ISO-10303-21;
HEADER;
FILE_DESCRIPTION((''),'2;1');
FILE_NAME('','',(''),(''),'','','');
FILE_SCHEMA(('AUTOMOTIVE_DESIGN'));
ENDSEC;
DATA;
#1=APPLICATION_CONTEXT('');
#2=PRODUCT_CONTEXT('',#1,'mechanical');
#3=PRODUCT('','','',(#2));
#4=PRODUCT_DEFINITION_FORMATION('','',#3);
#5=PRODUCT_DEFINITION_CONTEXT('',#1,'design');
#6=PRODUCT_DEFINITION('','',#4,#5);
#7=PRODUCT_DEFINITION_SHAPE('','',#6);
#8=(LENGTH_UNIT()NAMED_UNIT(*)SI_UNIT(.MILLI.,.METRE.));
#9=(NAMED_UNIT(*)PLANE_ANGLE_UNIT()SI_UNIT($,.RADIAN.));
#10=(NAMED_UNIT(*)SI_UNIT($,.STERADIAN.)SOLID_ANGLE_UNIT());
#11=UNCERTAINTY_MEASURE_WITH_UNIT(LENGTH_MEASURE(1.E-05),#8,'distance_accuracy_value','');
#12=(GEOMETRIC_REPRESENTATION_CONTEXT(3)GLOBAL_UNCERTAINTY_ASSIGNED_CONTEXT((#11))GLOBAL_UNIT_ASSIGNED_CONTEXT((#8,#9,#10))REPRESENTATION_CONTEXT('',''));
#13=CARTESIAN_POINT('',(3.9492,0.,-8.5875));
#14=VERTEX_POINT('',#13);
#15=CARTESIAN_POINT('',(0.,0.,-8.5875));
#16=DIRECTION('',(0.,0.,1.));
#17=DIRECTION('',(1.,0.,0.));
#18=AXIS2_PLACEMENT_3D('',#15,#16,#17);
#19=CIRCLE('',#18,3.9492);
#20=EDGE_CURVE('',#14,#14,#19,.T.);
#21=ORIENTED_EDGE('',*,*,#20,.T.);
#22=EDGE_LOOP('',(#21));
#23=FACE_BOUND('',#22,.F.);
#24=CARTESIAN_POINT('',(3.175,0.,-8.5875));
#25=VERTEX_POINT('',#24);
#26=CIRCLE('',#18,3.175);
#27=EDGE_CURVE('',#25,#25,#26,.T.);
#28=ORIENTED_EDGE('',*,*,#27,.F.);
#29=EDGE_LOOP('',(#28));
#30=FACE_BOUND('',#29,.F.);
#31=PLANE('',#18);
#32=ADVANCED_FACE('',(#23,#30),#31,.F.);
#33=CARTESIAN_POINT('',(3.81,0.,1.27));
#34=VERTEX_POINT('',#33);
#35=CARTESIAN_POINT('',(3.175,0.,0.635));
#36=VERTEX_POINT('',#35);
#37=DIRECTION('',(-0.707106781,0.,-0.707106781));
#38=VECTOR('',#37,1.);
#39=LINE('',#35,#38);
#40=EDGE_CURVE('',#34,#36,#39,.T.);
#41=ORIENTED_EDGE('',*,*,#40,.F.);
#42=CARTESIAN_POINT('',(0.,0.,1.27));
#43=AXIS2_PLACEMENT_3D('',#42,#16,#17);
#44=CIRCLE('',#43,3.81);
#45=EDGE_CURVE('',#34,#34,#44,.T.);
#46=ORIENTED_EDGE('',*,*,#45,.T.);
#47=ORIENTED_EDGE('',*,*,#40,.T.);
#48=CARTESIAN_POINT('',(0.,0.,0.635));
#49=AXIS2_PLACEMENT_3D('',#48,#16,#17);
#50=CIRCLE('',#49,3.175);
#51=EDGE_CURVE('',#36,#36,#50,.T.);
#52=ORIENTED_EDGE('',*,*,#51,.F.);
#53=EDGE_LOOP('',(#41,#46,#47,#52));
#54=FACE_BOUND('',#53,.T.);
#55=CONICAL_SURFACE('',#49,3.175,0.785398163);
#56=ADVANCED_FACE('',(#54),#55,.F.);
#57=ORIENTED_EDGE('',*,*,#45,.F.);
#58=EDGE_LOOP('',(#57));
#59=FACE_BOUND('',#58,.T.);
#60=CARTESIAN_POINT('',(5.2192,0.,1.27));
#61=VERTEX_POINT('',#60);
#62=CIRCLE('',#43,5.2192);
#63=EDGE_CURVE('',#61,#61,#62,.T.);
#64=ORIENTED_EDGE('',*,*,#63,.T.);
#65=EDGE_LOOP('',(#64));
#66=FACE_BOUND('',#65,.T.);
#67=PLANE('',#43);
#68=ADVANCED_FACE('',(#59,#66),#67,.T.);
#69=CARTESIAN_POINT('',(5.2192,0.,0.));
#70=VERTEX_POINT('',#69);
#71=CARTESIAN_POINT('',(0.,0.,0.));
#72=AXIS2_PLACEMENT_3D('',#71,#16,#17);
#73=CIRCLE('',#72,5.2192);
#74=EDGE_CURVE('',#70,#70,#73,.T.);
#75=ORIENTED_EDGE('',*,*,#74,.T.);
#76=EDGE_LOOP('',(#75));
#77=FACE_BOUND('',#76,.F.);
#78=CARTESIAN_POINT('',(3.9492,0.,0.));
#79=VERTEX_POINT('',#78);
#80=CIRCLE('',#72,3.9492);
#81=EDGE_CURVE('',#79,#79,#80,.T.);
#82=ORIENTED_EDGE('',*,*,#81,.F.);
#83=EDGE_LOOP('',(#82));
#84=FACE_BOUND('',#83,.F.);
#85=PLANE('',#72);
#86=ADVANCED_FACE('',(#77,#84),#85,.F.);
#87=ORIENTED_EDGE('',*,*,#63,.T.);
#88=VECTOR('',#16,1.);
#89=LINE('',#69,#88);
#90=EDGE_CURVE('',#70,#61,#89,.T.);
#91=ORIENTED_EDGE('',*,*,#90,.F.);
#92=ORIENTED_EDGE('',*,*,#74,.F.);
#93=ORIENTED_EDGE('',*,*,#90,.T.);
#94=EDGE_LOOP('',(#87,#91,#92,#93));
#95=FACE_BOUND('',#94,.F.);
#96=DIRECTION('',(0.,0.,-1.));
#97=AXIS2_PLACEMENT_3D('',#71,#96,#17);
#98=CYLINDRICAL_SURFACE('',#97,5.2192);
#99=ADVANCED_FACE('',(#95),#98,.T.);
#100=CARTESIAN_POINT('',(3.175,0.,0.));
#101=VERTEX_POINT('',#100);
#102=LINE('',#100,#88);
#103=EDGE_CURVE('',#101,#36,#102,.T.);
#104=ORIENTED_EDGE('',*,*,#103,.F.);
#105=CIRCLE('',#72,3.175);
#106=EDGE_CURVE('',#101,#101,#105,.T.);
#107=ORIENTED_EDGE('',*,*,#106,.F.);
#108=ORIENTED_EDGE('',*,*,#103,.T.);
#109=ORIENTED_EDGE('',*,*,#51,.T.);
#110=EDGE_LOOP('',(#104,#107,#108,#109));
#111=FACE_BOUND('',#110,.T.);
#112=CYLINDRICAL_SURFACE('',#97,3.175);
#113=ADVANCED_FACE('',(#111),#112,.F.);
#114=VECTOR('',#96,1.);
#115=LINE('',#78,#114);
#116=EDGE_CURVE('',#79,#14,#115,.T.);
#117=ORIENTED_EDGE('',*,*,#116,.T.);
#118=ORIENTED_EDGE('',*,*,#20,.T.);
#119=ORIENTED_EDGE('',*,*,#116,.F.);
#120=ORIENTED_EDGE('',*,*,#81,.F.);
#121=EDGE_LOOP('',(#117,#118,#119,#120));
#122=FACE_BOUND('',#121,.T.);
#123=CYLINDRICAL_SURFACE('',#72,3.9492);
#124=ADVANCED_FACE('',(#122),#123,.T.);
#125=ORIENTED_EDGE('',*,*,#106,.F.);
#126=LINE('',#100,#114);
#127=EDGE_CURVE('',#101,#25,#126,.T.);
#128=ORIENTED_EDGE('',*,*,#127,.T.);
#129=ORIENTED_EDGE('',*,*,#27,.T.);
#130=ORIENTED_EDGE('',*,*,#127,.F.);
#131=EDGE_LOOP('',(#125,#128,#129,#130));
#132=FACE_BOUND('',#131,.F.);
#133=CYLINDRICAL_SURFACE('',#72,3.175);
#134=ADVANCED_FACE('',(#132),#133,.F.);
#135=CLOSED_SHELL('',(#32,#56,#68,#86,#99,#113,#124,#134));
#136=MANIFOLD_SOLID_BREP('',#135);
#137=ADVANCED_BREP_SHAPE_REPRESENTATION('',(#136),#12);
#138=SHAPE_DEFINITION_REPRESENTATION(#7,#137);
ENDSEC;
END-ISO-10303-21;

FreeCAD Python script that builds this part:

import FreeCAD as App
import Part
import Sketcher
from FreeCAD import Vector
Q = App.Units.Quantity


def edges_at(feature, points):
    """Names of the edges that pass closest to the given points."""
    edges = feature.Shape.Edges
    near = lambda p: min(range(len(edges)), key=lambda i: edges[i].distToShape(Part.Vertex(*p))[0])
    return sorted({f"Edge{near(p) + 1}" for p in points})

doc = App.newDocument("Part")
body = doc.addObject("PartDesign::Body", "Body")

# Sketch on XY plane
sketch1 = body.newObject("Sketcher::SketchObject", "Sketch")
sketch1.AttachmentSupport = (doc.getObject("XY_Plane"), [""])
sketch1.MapMode = "FlatFace"
sketch1.addGeometry([
    Part.Circle(Vector(0, 0, 0), Vector(0, 0, 1), 5.2),
    Part.Circle(Vector(0, 0, 0), Vector(0, 0, 1), 3.2),
], False)
sketch1.addConstraint([
    Sketcher.Constraint("Coincident", 0, 3, -1, 1),
    Sketcher.Constraint("Coincident", 1, 3, -1, 1),
    Sketcher.Constraint("Diameter", 1, Q("0.25 in")),
    Sketcher.Constraint("Diameter", 0, Q("10.4384 mm")),
])
pad1 = body.newObject("PartDesign::Pad", "Pad")
pad1.Profile = sketch1
pad1.Length = Q("0.05 in")

# Sketch on XY plane
sketch2 = body.newObject("Sketcher::SketchObject", "Sketch001")
sketch2.AttachmentSupport = (doc.getObject("XY_Plane"), [""])
sketch2.MapMode = "FlatFace"
sketch2.addGeometry([
    Part.Circle(Vector(0, 0, 0), Vector(0, 0, 1), 3.9),
    Part.Circle(Vector(0, 0, 0), Vector(0, 0, 1), 3.2),
], False)
sketch2.addConstraint([
    Sketcher.Constraint("Coincident", 0, 3, -1, 1),
    Sketcher.Constraint("Coincident", 1, 3, -1, 1),
    Sketcher.Constraint("Diameter", 1, Q("0.25 in")),
    Sketcher.Constraint("Diameter", 0, Q("7.8984 mm")),
])
pad2 = body.newObject("PartDesign::Pad", "Pad001")
pad2.Profile = sketch2
pad2.Length = Q("0.3380906 in")
pad2.Reversed = True
doc.recompute()

chamfer = body.newObject("PartDesign::Chamfer", "Chamfer")
chamfer.Base = (pad2, edges_at(pad2, [(-3.175, 0, 1.27)]))
chamfer.Size = Q("0.025 in")

doc.recompute()
